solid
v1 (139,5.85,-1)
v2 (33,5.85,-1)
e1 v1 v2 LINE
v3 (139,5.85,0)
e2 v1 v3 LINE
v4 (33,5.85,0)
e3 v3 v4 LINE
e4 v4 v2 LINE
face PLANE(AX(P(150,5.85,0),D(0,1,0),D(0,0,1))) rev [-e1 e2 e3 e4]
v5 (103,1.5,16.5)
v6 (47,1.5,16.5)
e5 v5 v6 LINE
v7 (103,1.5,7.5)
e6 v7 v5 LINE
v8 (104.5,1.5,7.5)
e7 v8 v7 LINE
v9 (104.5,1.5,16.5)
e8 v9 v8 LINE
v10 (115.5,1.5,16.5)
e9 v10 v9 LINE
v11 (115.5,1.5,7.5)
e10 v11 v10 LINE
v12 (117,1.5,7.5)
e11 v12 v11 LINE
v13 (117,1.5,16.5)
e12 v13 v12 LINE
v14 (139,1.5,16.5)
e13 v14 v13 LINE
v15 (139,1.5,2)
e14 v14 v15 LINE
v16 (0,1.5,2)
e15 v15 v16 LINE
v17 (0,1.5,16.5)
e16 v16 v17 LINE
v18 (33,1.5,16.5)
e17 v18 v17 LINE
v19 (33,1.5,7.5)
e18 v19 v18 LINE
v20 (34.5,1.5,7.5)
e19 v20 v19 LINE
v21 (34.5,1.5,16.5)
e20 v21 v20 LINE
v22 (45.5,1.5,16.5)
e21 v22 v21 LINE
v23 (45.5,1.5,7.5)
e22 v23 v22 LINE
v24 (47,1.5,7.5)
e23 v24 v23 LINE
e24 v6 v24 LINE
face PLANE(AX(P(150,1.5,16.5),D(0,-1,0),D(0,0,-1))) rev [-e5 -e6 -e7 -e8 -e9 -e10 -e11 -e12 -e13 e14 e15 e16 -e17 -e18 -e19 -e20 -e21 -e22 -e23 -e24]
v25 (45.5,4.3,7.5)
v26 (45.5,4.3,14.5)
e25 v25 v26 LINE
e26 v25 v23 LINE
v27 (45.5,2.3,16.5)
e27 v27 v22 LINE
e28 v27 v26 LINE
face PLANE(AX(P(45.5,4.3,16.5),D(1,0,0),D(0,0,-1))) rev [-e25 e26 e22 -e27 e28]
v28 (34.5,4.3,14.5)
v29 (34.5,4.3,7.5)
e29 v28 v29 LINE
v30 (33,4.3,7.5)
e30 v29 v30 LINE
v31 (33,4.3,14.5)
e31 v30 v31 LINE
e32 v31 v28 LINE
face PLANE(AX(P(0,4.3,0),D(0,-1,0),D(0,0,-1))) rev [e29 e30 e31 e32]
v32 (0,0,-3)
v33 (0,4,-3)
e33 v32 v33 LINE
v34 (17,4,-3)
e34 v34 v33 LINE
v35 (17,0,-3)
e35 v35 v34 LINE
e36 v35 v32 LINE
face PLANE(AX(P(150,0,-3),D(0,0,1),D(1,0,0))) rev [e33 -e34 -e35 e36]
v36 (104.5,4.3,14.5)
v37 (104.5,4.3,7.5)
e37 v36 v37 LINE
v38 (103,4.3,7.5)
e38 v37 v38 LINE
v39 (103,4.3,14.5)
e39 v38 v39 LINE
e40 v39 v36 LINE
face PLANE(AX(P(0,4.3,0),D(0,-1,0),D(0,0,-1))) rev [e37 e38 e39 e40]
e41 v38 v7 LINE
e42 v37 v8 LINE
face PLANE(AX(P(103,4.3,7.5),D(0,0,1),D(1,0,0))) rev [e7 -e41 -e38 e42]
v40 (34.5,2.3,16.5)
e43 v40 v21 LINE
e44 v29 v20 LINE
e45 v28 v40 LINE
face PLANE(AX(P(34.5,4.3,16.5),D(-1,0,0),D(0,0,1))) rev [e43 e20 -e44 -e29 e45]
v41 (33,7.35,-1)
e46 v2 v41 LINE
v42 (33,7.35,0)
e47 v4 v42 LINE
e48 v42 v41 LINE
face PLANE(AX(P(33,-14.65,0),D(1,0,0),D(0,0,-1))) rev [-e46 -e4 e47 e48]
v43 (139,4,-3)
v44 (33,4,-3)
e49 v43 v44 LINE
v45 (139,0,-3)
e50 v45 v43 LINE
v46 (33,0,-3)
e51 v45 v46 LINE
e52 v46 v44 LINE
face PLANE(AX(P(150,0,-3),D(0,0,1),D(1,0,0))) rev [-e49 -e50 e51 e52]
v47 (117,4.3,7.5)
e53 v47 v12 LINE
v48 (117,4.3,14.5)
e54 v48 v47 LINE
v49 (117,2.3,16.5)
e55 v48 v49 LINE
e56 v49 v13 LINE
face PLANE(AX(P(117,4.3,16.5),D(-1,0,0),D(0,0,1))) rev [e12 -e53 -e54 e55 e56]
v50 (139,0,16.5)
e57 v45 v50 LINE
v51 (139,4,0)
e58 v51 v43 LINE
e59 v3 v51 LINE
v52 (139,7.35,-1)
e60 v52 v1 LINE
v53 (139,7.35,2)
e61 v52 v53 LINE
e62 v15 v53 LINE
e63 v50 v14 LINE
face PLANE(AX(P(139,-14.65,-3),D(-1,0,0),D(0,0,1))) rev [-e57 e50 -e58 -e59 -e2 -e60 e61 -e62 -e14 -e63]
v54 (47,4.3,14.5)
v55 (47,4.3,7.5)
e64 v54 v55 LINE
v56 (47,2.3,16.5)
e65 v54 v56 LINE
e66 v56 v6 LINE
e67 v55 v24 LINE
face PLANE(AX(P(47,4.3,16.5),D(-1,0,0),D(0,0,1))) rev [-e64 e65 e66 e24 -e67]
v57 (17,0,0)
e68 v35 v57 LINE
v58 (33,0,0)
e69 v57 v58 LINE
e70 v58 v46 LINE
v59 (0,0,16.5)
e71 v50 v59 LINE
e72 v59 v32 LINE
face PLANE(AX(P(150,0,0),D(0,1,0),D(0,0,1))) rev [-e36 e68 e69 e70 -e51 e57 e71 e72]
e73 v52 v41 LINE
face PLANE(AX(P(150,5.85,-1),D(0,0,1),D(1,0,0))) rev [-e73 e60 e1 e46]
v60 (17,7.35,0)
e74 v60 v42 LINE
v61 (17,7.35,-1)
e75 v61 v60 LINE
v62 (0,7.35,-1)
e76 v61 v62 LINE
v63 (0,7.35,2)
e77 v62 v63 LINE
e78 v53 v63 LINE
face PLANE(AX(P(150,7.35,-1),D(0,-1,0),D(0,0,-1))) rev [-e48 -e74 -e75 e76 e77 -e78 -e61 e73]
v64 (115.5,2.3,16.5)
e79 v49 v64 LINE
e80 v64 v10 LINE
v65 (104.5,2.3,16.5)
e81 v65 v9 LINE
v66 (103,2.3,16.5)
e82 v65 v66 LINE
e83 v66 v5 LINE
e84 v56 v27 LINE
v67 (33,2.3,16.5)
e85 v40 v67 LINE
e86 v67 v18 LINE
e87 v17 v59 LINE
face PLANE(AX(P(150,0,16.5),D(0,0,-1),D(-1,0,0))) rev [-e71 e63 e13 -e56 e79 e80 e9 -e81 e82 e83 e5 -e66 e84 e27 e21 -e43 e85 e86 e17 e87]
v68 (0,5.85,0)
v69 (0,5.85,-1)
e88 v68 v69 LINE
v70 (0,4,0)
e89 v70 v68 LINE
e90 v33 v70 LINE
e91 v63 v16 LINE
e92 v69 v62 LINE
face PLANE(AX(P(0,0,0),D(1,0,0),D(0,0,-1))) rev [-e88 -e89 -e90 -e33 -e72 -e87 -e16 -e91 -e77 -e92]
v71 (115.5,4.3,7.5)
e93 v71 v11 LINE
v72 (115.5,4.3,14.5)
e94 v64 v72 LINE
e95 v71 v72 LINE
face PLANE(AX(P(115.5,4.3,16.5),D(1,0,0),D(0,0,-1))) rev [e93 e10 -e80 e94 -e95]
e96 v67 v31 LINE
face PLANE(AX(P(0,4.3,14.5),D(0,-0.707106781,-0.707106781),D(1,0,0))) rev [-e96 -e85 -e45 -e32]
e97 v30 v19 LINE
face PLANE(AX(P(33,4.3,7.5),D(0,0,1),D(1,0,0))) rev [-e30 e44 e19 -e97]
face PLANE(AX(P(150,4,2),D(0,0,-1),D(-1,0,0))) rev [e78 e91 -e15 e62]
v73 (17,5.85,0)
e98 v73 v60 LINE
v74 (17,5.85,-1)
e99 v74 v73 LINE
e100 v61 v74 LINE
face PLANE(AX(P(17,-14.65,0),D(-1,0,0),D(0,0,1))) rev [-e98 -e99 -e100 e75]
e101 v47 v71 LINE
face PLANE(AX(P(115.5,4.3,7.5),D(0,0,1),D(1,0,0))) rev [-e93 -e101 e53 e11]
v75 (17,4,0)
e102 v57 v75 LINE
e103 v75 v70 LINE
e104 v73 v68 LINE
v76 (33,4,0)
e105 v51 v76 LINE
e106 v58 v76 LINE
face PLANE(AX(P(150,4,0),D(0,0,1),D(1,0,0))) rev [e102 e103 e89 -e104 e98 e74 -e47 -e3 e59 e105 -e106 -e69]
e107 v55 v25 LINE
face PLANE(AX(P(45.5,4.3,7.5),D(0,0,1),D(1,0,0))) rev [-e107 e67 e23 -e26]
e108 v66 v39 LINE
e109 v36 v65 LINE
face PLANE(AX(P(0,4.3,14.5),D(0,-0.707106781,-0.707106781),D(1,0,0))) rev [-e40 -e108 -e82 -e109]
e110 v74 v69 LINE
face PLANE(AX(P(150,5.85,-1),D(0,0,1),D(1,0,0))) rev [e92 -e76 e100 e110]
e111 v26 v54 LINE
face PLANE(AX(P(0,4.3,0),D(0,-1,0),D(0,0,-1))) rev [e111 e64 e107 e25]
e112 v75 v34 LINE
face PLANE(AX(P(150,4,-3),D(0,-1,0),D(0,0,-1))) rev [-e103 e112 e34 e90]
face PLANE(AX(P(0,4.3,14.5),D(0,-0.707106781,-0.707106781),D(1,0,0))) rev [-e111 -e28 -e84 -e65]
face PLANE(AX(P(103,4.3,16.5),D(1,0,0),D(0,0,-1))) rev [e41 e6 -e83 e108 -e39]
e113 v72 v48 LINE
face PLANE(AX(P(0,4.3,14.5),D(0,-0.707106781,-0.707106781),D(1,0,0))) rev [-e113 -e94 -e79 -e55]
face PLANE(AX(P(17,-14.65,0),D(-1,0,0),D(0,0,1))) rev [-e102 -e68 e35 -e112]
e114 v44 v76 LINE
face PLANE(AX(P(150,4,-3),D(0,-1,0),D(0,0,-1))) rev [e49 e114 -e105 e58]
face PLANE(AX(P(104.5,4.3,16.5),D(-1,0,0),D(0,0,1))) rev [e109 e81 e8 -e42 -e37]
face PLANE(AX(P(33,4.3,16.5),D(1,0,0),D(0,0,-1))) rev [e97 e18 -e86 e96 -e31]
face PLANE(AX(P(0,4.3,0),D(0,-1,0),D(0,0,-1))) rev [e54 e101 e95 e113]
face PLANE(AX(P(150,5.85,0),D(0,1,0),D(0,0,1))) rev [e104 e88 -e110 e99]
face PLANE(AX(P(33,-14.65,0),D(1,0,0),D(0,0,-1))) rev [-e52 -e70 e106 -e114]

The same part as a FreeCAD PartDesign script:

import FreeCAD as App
import Part
import Sketcher


def edges_at(feature, points):
    """Names of the edges that pass closest to the given points."""
    edges = feature.Shape.Edges
    near = lambda p: min(range(len(edges)), key=lambda i: edges[i].distToShape(Part.Vertex(*p))[0])
    return sorted({f"Edge{near(p) + 1}" for p in points})

doc = App.newDocument("Part")
body = doc.addObject("PartDesign::Body", "Body")

sketch1 = body.newObject("Sketcher::SketchObject", "Sketch")
sketch1.AttachmentSupport = (doc.getObject("YZ_Plane"), [""])
sketch1.MapMode = "FlatFace"
sketch1.addGeometry([
    Part.LineSegment(App.Vector(0, 16.5, 0), App.Vector(0, -3, 0)),
    Part.LineSegment(App.Vector(0, -3, 0), App.Vector(4, -3, 0)),
    Part.LineSegment(App.Vector(4, -3, 0), App.Vector(4, 0, 0)),
    Part.LineSegment(App.Vector(4, 0, 0), App.Vector(5.85, 0, 0)),
    Part.LineSegment(App.Vector(5.85, 0, 0), App.Vector(5.85, -1, 0)),
    Part.LineSegment(App.Vector(5.85, -1, 0), App.Vector(7.35, -1, 0)),
    Part.LineSegment(App.Vector(7.35, -1, 0), App.Vector(7.35, 2, 0)),
    Part.LineSegment(App.Vector(7.35, 2, 0), App.Vector(1.5, 2, 0)),
    Part.LineSegment(App.Vector(1.5, 2, 0), App.Vector(1.5, 16.5, 0)),
    Part.LineSegment(App.Vector(1.5, 16.5, 0), App.Vector(0, 16.5, 0)),
], False)
sketch1.addConstraint([
    Sketcher.Constraint("Coincident", 0, 2, 1, 1),
    Sketcher.Constraint("Coincident", 1, 2, 2, 1),
    Sketcher.Constraint("Coincident", 2, 2, 3, 1),
    Sketcher.Constraint("Coincident", 3, 2, 4, 1),
    Sketcher.Constraint("Coincident", 4, 2, 5, 1),
    Sketcher.Constraint("Coincident", 5, 2, 6, 1),
    Sketcher.Constraint("Coincident", 6, 2, 7, 1),
    Sketcher.Constraint("Coincident", 7, 2, 8, 1),
    Sketcher.Constraint("Coincident", 8, 2, 9, 1),
    Sketcher.Constraint("Coincident", 9, 2, 0, 1),
    Sketcher.Constraint("Vertical", 0),
    Sketcher.Constraint("Horizontal", 1),
    Sketcher.Constraint("Vertical", 2),
    Sketcher.Constraint("Horizontal", 3),
    Sketcher.Constraint("Vertical", 4),
    Sketcher.Constraint("Horizontal", 5),
    Sketcher.Constraint("Vertical", 6),
    Sketcher.Constraint("Horizontal", 7),
    Sketcher.Constraint("Vertical", 8),
    Sketcher.Constraint("Horizontal", 9),
    Sketcher.Constraint("PointOnObject", 0, 2, -2),
    Sketcher.Constraint("PointOnObject", 2, 2, -1),
    Sketcher.Constraint("Equal", 5, 9),
    Sketcher.Constraint("Equal", 2, 6),
    Sketcher.Constraint("DistanceX", 1, 1, 1, 2, 4.0),
    Sketcher.Constraint("DistanceY", 2, 1, 2, 2, 3.0),
    Sketcher.Constraint("DistanceY", 4, 2, 4, 1, 1.0),
    Sketcher.Constraint("DistanceX", 5, 1, 5, 2, 1.5),
    Sketcher.Constraint("DistanceY", 0, 2, 0, 1, 19.5),
    Sketcher.Constraint("DistanceX", 3, 1, 3, 2, 1.85),
])
pad1 = body.newObject("PartDesign::Pad", "Pad")
pad1.Profile = sketch1
pad1.Length = 150

sketch2 = body.newObject("Sketcher::SketchObject", "Sketch001")
sketch2.AttachmentSupport = (doc.getObject("XZ_Plane"), [""])
sketch2.MapMode = "FlatFace"
sketch2.AttachmentOffset = App.Placement(App.Vector(0, 0, -1.5), App.Rotation())
sketch2.addGeometry([
    Part.LineSegment(App.Vector(33, 7.5, 0), App.Vector(33, 16.5, 0)),
    Part.LineSegment(App.Vector(33, 16.5, 0), App.Vector(34.5, 16.5, 0)),
    Part.LineSegment(App.Vector(34.5, 16.5, 0), App.Vector(34.5, 7.5, 0)),
    Part.LineSegment(App.Vector(34.5, 7.5, 0), App.Vector(33, 7.5, 0)),
    Part.LineSegment(App.Vector(45.5, 7.5, 0), App.Vector(45.5, 16.5, 0)),
    Part.LineSegment(App.Vector(45.5, 16.5, 0), App.Vector(47, 16.5, 0)),
    Part.LineSegment(App.Vector(47, 16.5, 0), App.Vector(47, 7.5, 0)),
    Part.LineSegment(App.Vector(47, 7.5, 0), App.Vector(45.5, 7.5, 0)),
    Part.LineSegment(App.Vector(103, 7.5, 0), App.Vector(103, 16.5, 0)),
    Part.LineSegment(App.Vector(103, 16.5, 0), App.Vector(104.5, 16.5, 0)),
    Part.LineSegment(App.Vector(104.5, 16.5, 0), App.Vector(104.5, 7.5, 0)),
    Part.LineSegment(App.Vector(104.5, 7.5, 0), App.Vector(103, 7.5, 0)),
    Part.LineSegment(App.Vector(115.5, 7.5, 0), App.Vector(115.5, 16.5, 0)),
    Part.LineSegment(App.Vector(115.5, 16.5, 0), App.Vector(117, 16.5, 0)),
    Part.LineSegment(App.Vector(117, 16.5, 0), App.Vector(117, 7.5, 0)),
    Part.LineSegment(App.Vector(117, 7.5, 0), App.Vector(115.5, 7.5, 0)),
], False)
sketch2.addConstraint([
    Sketcher.Constraint("Coincident", 0, 2, 1, 1),
    Sketcher.Constraint("Coincident", 1, 2, 2, 1),
    Sketcher.Constraint("Coincident", 2, 2, 3, 1),
    Sketcher.Constraint("Coincident", 3, 2, 0, 1),
    Sketcher.Constraint("Coincident", 4, 2, 5, 1),
    Sketcher.Constraint("Coincident", 5, 2, 6, 1),
    Sketcher.Constraint("Coincident", 6, 2, 7, 1),
    Sketcher.Constraint("Coincident", 7, 2, 4, 1),
    Sketcher.Constraint("Coincident", 8, 2, 9, 1),
    Sketcher.Constraint("Coincident", 9, 2, 10, 1),
    Sketcher.Constraint("Coincident", 10, 2, 11, 1),
    Sketcher.Constraint("Coincident", 11, 2, 8, 1),
    Sketcher.Constraint("Coincident", 12, 2, 13, 1),
    Sketcher.Constraint("Coincident", 13, 2, 14, 1),
    Sketcher.Constraint("Coincident", 14, 2, 15, 1),
    Sketcher.Constraint("Coincident", 15, 2, 12, 1),
    Sketcher.Constraint("Vertical", 0),
    Sketcher.Constraint("Horizontal", 1),
    Sketcher.Constraint("Vertical", 2),
    Sketcher.Constraint("Horizontal", 3),
    Sketcher.Constraint("Vertical", 4),
    Sketcher.Constraint("Horizontal", 5),
    Sketcher.Constraint("Vertical", 6),
    Sketcher.Constraint("Horizontal", 7),
    Sketcher.Constraint("Vertical", 8),
    Sketcher.Constraint("Horizontal", 9),
    Sketcher.Constraint("Vertical", 10),
    Sketcher.Constraint("Horizontal", 11),
    Sketcher.Constraint("Vertical", 12),
    Sketcher.Constraint("Horizontal", 13),
    Sketcher.Constraint("Vertical", 14),
    Sketcher.Constraint("Horizontal", 15),
    Sketcher.Constraint("Horizontal", 1, 2, 4, 2),
    Sketcher.Constraint("Horizontal", 3, 2, 6, 2),
    Sketcher.Constraint("Horizontal", 5, 2, 8, 2),
    Sketcher.Constraint("Horizontal", 7, 2, 10, 2),
    Sketcher.Constraint("Horizontal", 9, 2, 12, 2),
    Sketcher.Constraint("Horizontal", 11, 2, 14, 2),
    Sketcher.Constraint("Equal", 3, 5),
    Sketcher.Constraint("Equal", 7, 9),
    Sketcher.Constraint("Equal", 11, 13),
    Sketcher.Constraint("DistanceY", 0, 1, 0, 2, 9.0),
    Sketcher.Constraint("DistanceX", 1, 1, 1, 2, 1.5),
    Sketcher.Constraint("DistanceX", -1, 1, 0, 2, 33.0),
    Sketcher.Constraint("DistanceX", -1, 1, 5, 2, 47.0),
    Sketcher.Constraint("DistanceX", -1, 1, 8, 2, 103.0),
    Sketcher.Constraint("DistanceX", -1, 1, 13, 2, 117.0),
    Sketcher.Constraint("DistanceY", -1, 1, 0, 2, 16.5),
])
pad2 = body.newObject("PartDesign::Pad", "Pad001")
pad2.Profile = sketch2
pad2.Length = 2.8
pad2.Reversed = True

sketch3 = body.newObject("Sketcher::SketchObject", "Sketch002")
sketch3.AttachmentSupport = (doc.getObject("XZ_Plane"), [""])
sketch3.MapMode = "FlatFace"
sketch3.AttachmentOffset = App.Placement(App.Vector(0, 0, -7.35), App.Rotation())
sketch3.addGeometry([
    Part.LineSegment(App.Vector(17, -3, 0), App.Vector(17, 0, 0)),
    Part.LineSegment(App.Vector(17, 0, 0), App.Vector(33, 0, 0)),
    Part.LineSegment(App.Vector(33, 0, 0), App.Vector(33, -3, 0)),
    Part.LineSegment(App.Vector(33, -3, 0), App.Vector(17, -3, 0)),
    Part.LineSegment(App.Vector(139, -3, 0), App.Vector(139, 16.5, 0)),
    Part.LineSegment(App.Vector(139, 16.5, 0), App.Vector(150, 16.5, 0)),
    Part.LineSegment(App.Vector(150, 16.5, 0), App.Vector(150, -3, 0)),
    Part.LineSegment(App.Vector(150, -3, 0), App.Vector(139, -3, 0)),
], False)
sketch3.addConstraint([
    Sketcher.Constraint("Coincident", 0, 2, 1, 1),
    Sketcher.Constraint("Coincident", 1, 2, 2, 1),
    Sketcher.Constraint("Coincident", 2, 2, 3, 1),
    Sketcher.Constraint("Coincident", 3, 2, 0, 1),
    Sketcher.Constraint("Coincident", 4, 2, 5, 1),
    Sketcher.Constraint("Coincident", 5, 2, 6, 1),
    Sketcher.Constraint("Coincident", 6, 2, 7, 1),
    Sketcher.Constraint("Coincident", 7, 2, 4, 1),
    Sketcher.Constraint("Vertical", 0),
    Sketcher.Constraint("Horizontal", 1),
    Sketcher.Constraint("Vertical", 2),
    Sketcher.Constraint("Horizontal", 3),
    Sketcher.Constraint("Vertical", 4),
    Sketcher.Constraint("Horizontal", 5),
    Sketcher.Constraint("Vertical", 6),
    Sketcher.Constraint("Horizontal", 7),
    Sketcher.Constraint("PointOnObject", 0, 2, -1),
    Sketcher.Constraint("Horizontal", 3, 2, 6, 2),
    Sketcher.Constraint("DistanceX", 1, 1, 1, 2, 16.0),
    Sketcher.Constraint("DistanceX", 5, 1, 5, 2, 11.0),
    Sketcher.Constraint("DistanceY", 0, 1, 0, 2, 3.0),
    Sketcher.Constraint("DistanceY", 4, 1, 4, 2, 19.5),
    Sketcher.Constraint("DistanceX", -1, 1, 0, 2, 17.0),
    Sketcher.Constraint("DistanceX", -1, 1, 4, 2, 139.0),
])
pocket1 = body.newObject("PartDesign::Pocket", "Pocket")
pocket1.Profile = sketch3
pocket1.Length = 22
pocket1.Reversed = True
doc.recompute()

chamfer = body.newObject("PartDesign::Chamfer", "Chamfer")
chamfer.Base = (pocket1, edges_at(pocket1, [
    (33.75, 4.3, 16.5),
    (46.25, 4.3, 16.5),
    (103.75, 4.3, 16.5),
    (116.25, 4.3, 16.5),
]))
chamfer.Size = 2

doc.recompute()
